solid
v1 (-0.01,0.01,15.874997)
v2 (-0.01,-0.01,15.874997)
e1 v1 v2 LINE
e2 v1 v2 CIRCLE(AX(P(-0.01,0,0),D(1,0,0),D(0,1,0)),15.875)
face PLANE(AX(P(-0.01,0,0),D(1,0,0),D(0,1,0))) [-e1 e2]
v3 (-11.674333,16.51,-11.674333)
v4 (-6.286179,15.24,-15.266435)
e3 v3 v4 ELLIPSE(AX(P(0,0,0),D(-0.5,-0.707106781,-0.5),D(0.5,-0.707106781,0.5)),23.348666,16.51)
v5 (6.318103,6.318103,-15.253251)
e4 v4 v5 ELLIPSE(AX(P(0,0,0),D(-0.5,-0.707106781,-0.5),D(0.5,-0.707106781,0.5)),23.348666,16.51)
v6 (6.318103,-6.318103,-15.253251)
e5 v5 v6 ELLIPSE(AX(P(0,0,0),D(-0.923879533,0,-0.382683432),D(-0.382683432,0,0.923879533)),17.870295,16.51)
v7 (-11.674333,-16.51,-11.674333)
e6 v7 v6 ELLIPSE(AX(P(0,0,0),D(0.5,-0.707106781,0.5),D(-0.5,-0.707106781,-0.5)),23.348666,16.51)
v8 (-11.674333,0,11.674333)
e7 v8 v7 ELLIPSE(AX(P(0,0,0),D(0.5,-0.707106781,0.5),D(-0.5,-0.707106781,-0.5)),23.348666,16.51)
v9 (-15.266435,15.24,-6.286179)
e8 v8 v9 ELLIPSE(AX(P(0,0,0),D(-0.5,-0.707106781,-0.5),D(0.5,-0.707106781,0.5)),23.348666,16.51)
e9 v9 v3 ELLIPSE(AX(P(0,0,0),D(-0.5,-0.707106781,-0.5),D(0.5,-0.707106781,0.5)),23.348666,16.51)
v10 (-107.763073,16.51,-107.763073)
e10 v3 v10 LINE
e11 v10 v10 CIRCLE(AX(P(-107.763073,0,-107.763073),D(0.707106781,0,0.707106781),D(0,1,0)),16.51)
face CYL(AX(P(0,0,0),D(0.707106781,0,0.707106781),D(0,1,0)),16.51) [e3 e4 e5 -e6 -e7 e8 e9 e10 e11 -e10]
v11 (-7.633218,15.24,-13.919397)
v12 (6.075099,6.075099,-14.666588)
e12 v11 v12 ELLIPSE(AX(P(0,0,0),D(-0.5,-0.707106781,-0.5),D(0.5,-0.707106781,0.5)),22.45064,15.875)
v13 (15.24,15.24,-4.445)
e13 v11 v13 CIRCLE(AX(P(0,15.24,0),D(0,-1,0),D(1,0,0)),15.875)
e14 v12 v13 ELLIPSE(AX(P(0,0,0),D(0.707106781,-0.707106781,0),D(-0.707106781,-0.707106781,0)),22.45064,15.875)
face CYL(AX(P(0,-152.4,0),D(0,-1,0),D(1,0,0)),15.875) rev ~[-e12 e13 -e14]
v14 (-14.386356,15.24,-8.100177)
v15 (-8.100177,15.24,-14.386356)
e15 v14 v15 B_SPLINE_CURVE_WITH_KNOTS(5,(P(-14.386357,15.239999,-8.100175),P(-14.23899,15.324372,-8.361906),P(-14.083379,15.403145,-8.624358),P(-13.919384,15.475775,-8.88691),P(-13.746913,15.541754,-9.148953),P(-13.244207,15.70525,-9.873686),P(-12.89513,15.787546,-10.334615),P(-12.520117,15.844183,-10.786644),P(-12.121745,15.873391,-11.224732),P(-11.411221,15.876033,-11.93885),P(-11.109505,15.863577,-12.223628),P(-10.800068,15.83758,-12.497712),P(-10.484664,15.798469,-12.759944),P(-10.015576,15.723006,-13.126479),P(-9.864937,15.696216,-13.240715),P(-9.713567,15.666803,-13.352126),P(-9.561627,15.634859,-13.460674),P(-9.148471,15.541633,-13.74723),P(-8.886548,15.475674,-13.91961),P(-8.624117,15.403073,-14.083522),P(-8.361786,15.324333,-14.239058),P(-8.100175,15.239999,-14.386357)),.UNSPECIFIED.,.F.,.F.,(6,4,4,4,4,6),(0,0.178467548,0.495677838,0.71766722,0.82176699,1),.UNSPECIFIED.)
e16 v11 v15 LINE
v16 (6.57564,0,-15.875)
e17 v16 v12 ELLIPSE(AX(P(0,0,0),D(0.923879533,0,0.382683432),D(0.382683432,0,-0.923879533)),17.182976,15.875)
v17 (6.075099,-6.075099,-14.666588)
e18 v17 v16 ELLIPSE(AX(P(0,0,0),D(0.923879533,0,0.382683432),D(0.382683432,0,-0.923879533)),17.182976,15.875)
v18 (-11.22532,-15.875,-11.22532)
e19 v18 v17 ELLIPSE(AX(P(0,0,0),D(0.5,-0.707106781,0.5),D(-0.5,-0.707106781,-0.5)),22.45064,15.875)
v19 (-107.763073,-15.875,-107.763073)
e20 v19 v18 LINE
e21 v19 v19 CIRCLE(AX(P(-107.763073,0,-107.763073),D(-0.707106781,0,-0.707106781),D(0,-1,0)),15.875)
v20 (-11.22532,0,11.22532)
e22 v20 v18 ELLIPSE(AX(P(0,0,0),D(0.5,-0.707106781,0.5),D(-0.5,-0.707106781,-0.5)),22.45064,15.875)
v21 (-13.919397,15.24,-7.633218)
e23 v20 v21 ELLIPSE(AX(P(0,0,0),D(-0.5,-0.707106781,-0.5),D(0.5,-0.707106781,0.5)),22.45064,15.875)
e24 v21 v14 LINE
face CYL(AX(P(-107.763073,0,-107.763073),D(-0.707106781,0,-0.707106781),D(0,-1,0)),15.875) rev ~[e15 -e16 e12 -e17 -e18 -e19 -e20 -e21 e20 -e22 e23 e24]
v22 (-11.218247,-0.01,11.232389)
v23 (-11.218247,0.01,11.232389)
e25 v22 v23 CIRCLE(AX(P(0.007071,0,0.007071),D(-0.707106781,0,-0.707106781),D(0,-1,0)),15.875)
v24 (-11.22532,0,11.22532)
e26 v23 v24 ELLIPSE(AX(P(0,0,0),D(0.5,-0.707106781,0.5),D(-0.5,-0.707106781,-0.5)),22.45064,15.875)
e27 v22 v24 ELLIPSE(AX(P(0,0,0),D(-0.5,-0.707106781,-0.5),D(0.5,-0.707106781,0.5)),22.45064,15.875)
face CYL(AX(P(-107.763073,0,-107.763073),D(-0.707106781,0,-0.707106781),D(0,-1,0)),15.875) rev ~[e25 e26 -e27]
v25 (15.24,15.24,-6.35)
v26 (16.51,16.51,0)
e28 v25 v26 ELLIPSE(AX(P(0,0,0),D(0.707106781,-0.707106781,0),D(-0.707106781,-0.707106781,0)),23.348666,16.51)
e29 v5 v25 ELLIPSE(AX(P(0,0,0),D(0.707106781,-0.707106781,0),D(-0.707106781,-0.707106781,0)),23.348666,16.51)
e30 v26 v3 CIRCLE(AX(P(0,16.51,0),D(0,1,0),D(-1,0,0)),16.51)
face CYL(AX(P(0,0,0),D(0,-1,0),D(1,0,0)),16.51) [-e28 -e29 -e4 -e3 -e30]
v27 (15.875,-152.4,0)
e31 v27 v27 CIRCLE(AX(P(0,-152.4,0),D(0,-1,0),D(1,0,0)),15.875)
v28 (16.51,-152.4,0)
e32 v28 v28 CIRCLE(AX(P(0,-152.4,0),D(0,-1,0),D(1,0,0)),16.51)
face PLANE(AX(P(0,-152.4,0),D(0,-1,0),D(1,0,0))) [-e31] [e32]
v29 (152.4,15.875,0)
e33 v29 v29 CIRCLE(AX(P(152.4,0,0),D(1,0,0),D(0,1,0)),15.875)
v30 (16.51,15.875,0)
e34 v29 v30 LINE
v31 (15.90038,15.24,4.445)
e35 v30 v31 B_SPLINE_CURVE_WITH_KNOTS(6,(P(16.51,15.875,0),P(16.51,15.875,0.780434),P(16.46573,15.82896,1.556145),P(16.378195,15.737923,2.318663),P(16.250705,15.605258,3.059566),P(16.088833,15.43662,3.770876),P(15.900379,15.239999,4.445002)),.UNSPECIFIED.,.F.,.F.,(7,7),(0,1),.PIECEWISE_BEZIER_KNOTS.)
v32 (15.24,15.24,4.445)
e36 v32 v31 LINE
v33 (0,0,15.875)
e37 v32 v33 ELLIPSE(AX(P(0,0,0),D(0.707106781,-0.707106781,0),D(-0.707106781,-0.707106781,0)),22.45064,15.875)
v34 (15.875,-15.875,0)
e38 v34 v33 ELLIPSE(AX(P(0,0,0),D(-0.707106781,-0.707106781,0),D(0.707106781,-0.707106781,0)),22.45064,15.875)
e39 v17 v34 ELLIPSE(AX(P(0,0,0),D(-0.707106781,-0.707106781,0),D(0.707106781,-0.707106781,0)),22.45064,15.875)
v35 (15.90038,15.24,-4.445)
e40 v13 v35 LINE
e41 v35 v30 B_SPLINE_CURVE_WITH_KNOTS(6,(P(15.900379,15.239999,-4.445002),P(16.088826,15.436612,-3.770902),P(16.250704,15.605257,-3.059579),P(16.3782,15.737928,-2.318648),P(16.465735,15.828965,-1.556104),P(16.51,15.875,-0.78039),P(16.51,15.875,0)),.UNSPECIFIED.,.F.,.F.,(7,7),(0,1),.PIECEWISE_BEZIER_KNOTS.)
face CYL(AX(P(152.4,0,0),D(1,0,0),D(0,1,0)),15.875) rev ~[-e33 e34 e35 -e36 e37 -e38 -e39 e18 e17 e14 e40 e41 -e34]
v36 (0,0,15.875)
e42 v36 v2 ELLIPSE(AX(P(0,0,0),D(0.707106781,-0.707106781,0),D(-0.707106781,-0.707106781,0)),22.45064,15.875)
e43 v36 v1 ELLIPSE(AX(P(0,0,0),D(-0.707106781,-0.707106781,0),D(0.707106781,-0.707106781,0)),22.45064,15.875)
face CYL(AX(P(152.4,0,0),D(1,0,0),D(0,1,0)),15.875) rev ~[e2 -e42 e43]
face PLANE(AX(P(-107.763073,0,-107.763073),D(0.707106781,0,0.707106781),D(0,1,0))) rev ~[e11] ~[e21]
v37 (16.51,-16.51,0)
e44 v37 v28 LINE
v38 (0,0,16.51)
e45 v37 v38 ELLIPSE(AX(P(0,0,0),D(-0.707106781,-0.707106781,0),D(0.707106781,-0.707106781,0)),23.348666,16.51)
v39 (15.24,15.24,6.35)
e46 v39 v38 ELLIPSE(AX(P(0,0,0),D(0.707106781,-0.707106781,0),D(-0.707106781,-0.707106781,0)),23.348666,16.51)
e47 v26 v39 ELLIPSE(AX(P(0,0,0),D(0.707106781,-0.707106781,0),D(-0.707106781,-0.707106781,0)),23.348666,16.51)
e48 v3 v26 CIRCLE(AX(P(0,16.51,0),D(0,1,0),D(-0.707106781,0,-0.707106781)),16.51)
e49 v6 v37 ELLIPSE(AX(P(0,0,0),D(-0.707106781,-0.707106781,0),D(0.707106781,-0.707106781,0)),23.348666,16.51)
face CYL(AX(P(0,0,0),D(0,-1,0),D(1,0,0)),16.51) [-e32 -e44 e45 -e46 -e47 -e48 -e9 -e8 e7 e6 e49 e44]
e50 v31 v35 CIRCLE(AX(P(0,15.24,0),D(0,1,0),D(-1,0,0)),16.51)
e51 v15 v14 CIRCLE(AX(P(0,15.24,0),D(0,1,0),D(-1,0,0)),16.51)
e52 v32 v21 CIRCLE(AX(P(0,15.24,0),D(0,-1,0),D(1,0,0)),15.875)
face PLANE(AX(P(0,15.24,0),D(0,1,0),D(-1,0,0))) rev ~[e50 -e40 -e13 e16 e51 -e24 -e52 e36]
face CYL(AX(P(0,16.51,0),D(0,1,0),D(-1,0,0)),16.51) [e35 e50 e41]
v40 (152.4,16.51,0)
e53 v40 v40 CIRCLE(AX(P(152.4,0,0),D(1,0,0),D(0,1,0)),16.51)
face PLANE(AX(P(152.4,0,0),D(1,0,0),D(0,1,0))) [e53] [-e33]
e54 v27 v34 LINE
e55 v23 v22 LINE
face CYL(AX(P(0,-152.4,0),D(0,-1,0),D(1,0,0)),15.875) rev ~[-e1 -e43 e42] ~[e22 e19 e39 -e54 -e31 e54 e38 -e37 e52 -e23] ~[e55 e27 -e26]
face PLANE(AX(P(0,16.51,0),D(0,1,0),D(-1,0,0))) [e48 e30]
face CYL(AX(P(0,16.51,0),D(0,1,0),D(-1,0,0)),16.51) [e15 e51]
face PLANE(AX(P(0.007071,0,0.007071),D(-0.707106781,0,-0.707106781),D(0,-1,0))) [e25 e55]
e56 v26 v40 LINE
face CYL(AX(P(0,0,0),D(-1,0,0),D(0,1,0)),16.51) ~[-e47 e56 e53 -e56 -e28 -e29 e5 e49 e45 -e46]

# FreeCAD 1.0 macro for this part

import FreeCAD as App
import Part
import Sketcher

V = App.Vector
Q = App.Units.Quantity

doc = App.newDocument("Part")
body = doc.addObject("PartDesign::Body", "Body")

sketch1 = body.newObject("Sketcher::SketchObject", "Sketch")
sketch1.AttachmentSupport = (doc.getObject("XZ_Plane"), [""])
sketch1.MapMode = "FlatFace"
sketch1.addGeometry(Part.Circle(V(0, 0, 0), V(0, 0, 1), 17), False)
sketch1.addConstraint(Sketcher.Constraint("Coincident", 0, 3, -1, 1))
sketch1.addConstraint(Sketcher.Constraint("Diameter", 0, Q("1.3 in")))
pad1 = body.newObject("PartDesign::Pad", "Pad")
pad1.Profile = sketch1
pad1.Type = "TwoLengths"
pad1.Length = Q("6 in")
pad1.Length2 = Q("6 in")

sketch2 = body.newObject("Sketcher::SketchObject", "Sketch001")
sketch2.AttachmentSupport = (doc.getObject("YZ_Plane"), [""])
sketch2.MapMode = "FlatFace"
sketch2.addGeometry(Part.Circle(V(0, 0, 0), V(0, 0, 1), 17), False)
sketch2.addConstraint(Sketcher.Constraint("Coincident", 0, 3, -1, 1))
sketch2.addConstraint(Sketcher.Constraint("Diameter", 0, Q("1.3 in")))
pad2 = body.newObject("PartDesign::Pad", "Pad001")
pad2.Profile = sketch2
pad2.Length = Q("6 in")

sketch3 = body.newObject("Sketcher::SketchObject", "Sketch002")
sketch3.Placement = App.Placement(V(0, 0, 0), App.Rotation(V(0, 1, 0), V(-0.707106781, 0, 0.707106781), V(0.707106781, 0, 0.707106781), "ZXY"))
sketch3.addGeometry(Part.Circle(V(0, 0, 0), V(0, 0, 1), 17), False)
sketch3.addConstraint(Sketcher.Constraint("Coincident", 0, 3, -1, 1))
sketch3.addConstraint(Sketcher.Constraint("Diameter", 0, Q("1.3 in")))
pad3 = body.newObject("PartDesign::Pad", "Pad002")
pad3.Profile = sketch3
pad3.Length = Q("6 in")
pad3.Reversed = True

sketch4 = body.newObject("Sketcher::SketchObject", "Sketch003")
sketch4.AttachmentSupport = (doc.getObject("XZ_Plane"), [""])
sketch4.MapMode = "FlatFace"
sketch4.AttachmentOffset = App.Placement(V(0, 0, 6 * 25.4), App.Rotation())
sketch4.addGeometry(Part.Circle(V(0, 0, 0), V(0, 0, 1), 16), False)
sketch4.addConstraint(Sketcher.Constraint("Coincident", 0, 3, -1, 1))
sketch4.addConstraint(Sketcher.Constraint("Diameter", 0, Q("1.25 in")))
pocket1 = body.newObject("PartDesign::Pocket", "Pocket")
pocket1.Profile = sketch4
pocket1.Type = "ThroughAll"

sketch5 = body.newObject("Sketcher::SketchObject", "Sketch004")
sketch5.AttachmentSupport = (doc.getObject("YZ_Plane"), [""])
sketch5.MapMode = "FlatFace"
sketch5.AttachmentOffset = App.Placement(V(0, 0, 6 * 25.4), App.Rotation())
sketch5.addGeometry(Part.Circle(V(0, 0, 0), V(0, 0, 1), 16), False)
sketch5.addConstraint(Sketcher.Constraint("Coincident", 0, 3, -1, 1))
sketch5.addConstraint(Sketcher.Constraint("Diameter", 0, Q("1.25 in")))
pocket2 = body.newObject("PartDesign::Pocket", "Pocket001")
pocket2.Profile = sketch5
pocket2.Length = 152.41

sketch6 = body.newObject("Sketcher::SketchObject", "Sketch005")
sketch6.Placement = App.Placement(V(-107.763073, 0, -107.763073), App.Rotation(V(0, -1, 0), V(-0.707106781, 0, 0.707106781), V(-0.707106781, 0, -0.707106781), "ZXY"))
sketch6.addGeometry(Part.Circle(V(0, 0, 0), V(0, 0, 1), 16), False)
sketch6.addConstraint(Sketcher.Constraint("Coincident", 0, 3, -1, 1))
sketch6.addConstraint(Sketcher.Constraint("Diameter", 0, Q("1.25 in")))
pocket3 = body.newObject("PartDesign::Pocket", "Pocket002")
pocket3.Profile = sketch6
pocket3.Length = 152.41

sketch7 = body.newObject("Sketcher::SketchObject", "Sketch006")
sketch7.AttachmentSupport = (doc.getObject("XZ_Plane"), [""])
sketch7.MapMode = "FlatFace"
sketch7.AttachmentOffset = App.Placement(V(0, 0, -6 * 25.4), App.Rotation())
sketch7.addGeometry(Part.Circle(V(0, 0, 0), V(0, 0, 1), 17), False)
sketch7.addConstraint(Sketcher.Constraint("Coincident", 0, 3, -1, 1))
sketch7.addConstraint(Sketcher.Constraint("Diameter", 0, Q("1.3 in")))
pocket4 = body.newObject("PartDesign::Pocket", "Pocket003")
pocket4.Profile = sketch7
pocket4.Length = Q("5.35 in")
pocket4.Reversed = True

sketch8 = body.newObject("Sketcher::SketchObject", "Sketch007")
sketch8.AttachmentSupport = (doc.getObject("XZ_Plane"), [""])
sketch8.MapMode = "FlatFace"
sketch8.AttachmentOffset = App.Placement(V(0, 0, -0.65 * 25.4), App.Rotation())
sketch8.addGeometry(Part.Circle(V(0, 0, 0), V(0, 0, 1), 17), False)
sketch8.addConstraint(Sketcher.Constraint("Coincident", 0, 3, -1, 1))
sketch8.addConstraint(Sketcher.Constraint("Diameter", 0, Q("1.3 in")))
pad4 = body.newObject("PartDesign::Pad", "Pad003")
pad4.Profile = sketch8
pad4.Length = Q("0.05 in")

doc.recompute()
